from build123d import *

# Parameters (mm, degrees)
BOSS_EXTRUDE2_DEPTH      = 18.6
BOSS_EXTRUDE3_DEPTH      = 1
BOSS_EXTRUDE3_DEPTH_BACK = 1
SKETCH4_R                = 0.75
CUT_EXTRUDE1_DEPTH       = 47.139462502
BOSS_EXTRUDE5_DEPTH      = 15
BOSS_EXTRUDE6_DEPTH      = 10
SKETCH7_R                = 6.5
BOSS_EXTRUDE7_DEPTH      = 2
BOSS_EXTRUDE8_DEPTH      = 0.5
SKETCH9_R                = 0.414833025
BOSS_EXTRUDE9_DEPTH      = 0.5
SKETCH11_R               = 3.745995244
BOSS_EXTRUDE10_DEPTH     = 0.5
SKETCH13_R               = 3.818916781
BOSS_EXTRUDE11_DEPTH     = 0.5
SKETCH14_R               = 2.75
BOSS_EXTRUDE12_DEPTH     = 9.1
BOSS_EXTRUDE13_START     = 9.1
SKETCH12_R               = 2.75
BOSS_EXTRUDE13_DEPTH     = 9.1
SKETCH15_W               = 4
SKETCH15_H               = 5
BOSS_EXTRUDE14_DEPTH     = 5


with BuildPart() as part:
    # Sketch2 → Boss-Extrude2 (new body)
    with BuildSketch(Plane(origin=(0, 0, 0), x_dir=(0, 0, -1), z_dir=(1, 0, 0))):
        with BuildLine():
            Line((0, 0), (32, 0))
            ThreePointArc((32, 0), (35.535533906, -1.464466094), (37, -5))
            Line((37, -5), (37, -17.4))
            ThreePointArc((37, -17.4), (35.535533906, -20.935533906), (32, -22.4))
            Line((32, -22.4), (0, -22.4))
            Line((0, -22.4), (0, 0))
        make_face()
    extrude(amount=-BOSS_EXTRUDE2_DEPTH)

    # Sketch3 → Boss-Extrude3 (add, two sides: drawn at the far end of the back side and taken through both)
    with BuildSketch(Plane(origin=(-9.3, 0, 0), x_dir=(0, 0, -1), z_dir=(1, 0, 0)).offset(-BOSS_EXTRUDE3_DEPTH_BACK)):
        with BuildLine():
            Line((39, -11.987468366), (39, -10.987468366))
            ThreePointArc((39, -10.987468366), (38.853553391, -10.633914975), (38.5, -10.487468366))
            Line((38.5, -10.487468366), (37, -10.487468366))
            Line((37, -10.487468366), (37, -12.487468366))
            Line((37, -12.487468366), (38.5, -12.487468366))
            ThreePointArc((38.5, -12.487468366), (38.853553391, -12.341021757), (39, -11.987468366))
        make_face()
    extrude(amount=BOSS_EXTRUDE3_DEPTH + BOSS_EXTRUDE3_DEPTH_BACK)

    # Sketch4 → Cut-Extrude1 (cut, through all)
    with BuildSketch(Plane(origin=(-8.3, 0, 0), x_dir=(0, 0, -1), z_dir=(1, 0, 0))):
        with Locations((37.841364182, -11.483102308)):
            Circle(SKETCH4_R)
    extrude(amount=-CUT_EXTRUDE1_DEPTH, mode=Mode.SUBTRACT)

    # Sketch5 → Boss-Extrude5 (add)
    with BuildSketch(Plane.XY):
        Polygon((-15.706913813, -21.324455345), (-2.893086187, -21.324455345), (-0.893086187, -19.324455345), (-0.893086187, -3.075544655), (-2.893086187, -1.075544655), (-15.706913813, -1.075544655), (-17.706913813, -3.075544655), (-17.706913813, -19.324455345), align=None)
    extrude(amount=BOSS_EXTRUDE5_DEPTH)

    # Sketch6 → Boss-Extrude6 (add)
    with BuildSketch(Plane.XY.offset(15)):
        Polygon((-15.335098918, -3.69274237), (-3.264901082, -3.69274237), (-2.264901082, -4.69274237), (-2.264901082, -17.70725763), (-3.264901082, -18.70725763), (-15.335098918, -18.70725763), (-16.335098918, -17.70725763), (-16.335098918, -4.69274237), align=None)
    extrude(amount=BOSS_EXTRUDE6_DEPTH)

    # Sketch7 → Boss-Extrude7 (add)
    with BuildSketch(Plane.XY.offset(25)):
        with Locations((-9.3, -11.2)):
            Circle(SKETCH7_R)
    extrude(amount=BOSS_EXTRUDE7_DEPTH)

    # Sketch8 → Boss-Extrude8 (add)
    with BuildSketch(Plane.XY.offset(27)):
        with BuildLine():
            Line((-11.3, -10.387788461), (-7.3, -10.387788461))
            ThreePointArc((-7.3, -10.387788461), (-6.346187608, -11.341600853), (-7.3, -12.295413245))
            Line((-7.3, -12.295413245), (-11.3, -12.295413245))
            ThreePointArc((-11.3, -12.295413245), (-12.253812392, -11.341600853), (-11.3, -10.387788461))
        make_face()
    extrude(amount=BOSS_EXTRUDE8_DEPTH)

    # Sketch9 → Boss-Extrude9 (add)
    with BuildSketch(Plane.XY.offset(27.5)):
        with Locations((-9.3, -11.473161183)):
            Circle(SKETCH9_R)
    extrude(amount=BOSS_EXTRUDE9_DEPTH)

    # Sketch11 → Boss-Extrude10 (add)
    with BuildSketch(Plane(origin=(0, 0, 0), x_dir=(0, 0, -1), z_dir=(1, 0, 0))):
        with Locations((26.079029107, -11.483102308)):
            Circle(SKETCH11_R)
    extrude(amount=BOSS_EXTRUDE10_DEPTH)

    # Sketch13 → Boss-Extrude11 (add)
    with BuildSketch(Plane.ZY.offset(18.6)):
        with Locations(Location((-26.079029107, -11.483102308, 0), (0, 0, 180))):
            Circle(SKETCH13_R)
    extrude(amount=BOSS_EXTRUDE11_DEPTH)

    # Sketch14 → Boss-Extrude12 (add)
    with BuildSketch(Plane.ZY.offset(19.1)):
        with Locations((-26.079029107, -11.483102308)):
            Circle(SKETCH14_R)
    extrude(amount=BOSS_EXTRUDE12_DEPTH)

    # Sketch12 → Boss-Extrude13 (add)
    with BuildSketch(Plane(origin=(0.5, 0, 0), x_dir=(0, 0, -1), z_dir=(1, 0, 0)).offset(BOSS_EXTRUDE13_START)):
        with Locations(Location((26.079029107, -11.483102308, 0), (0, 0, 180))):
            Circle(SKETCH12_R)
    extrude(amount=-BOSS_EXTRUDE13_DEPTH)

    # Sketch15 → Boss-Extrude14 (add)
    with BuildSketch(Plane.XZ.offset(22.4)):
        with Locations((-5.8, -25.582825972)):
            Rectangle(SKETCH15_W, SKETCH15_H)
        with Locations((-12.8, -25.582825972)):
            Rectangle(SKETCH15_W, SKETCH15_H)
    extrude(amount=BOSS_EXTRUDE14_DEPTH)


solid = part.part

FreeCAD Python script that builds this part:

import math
import FreeCAD as App
import Part
import Sketcher

V = App.Vector
Q = App.Units.Quantity

doc = App.newDocument("Part")
body = doc.addObject("PartDesign::Body", "Body")

# Sketch on YZ plane
sketch1 = body.newObject("Sketcher::SketchObject", "Sketch")
sketch1.AttachmentSupport = (doc.getObject("YZ_Plane"), [""])
sketch1.MapMode = "FlatFace"
sketch1.addGeometry(Part.LineSegment(V(0, -32, 0), V(0, 0, 0)), False)
sketch1.addGeometry(Part.LineSegment(V(0, 0, 0), V(-22, 0, 0)), False)
sketch1.addGeometry(Part.LineSegment(V(-22, 0, 0), V(-22, -32, 0)), False)
sketch1.addGeometry(Part.ArcOfCircle(Part.Circle(V(-17, -32, 0), V(0, 0, 1), 5), math.radians(180), math.radians(270)), False)
sketch1.addGeometry(Part.LineSegment(V(-17, -37, 0), V(-5, -37, 0)), False)
sketch1.addGeometry(Part.ArcOfCircle(Part.Circle(V(-5, -32, 0), V(0, 0, 1), 5), math.radians(-90), math.radians(0)), False)
sketch1.addConstraint(Sketcher.Constraint("Coincident", 0, 2, 1, 1))
sketch1.addConstraint(Sketcher.Constraint("Coincident", 1, 2, 2, 1))
sketch1.addConstraint(Sketcher.Constraint("Tangent", 2, 2, 3, 1))
sketch1.addConstraint(Sketcher.Constraint("Tangent", 3, 2, 4, 1))
sketch1.addConstraint(Sketcher.Constraint("Tangent", 4, 2, 5, 1))
sketch1.addConstraint(Sketcher.Constraint("Tangent", 5, 2, 0, 1))
sketch1.addConstraint(Sketcher.Constraint("Vertical", 0))
sketch1.addConstraint(Sketcher.Constraint("Horizontal", 1))
sketch1.addConstraint(Sketcher.Constraint("Vertical", 2))
sketch1.addConstraint(Sketcher.Constraint("Horizontal", 4))
sketch1.addConstraint(Sketcher.Constraint("Coincident", 0, 2, -1, 1))
sketch1.addConstraint(Sketcher.Constraint("Equal", 3, 5))
sketch1.addConstraint(Sketcher.Constraint("Radius", 3, Q("5 mm")))
sketch1.addConstraint(Sketcher.Constraint("DistanceY", 0, 1, 0, 2, Q("32 mm")))
sketch1.addConstraint(Sketcher.Constraint("DistanceX", 1, 2, 1, 1, Q("22.4 mm")))
pad1 = body.newObject("PartDesign::Pad", "Pad")
pad1.Profile = sketch1
pad1.Length = 18.6
pad1.Reversed = True

# Sketch on YZ plane
sketch2 = body.newObject("Sketcher::SketchObject", "Sketch001")
sketch2.AttachmentSupport = (doc.getObject("YZ_Plane"), [""])
sketch2.MapMode = "FlatFace"
sketch2.AttachmentOffset = App.Placement(V(0, 0, -9.3), App.Rotation())
sketch2.addGeometry(Part.LineSegment(V(-11.99, -39, 0), V(-10.99, -39, 0)), False)
sketch2.addGeometry(Part.ArcOfCircle(Part.Circle(V(-10.99, -38.5, 0), V(0, 0, 1), 0.5), math.radians(-90), math.radians(0)), False)
sketch2.addGeometry(Part.LineSegment(V(-10.49, -38.5, 0), V(-10.49, -37, 0)), False)
sketch2.addGeometry(Part.LineSegment(V(-10.49, -37, 0), V(-12.49, -37, 0)), False)
sketch2.addGeometry(Part.LineSegment(V(-12.49, -37, 0), V(-12.49, -38.5, 0)), False)
sketch2.addGeometry(Part.ArcOfCircle(Part.Circle(V(-11.99, -38.5, 0), V(0, 0, 1), 0.5), math.radians(180), math.radians(270)), False)
sketch2.addConstraint(Sketcher.Constraint("Tangent", 0, 2, 1, 1))
sketch2.addConstraint(Sketcher.Constraint("Tangent", 1, 2, 2, 1))
sketch2.addConstraint(Sketcher.Constraint("Coincident", 2, 2, 3, 1))
sketch2.addConstraint(Sketcher.Constraint("Coincident", 3, 2, 4, 1))
sketch2.addConstraint(Sketcher.Constraint("Tangent", 4, 2, 5, 1))
sketch2.addConstraint(Sketcher.Constraint("Tangent", 5, 2, 0, 1))
sketch2.addConstraint(Sketcher.Constraint("Horizontal", 0))
sketch2.addConstraint(Sketcher.Constraint("Vertical", 2))
sketch2.addConstraint(Sketcher.Constraint("Horizontal", 3))
sketch2.addConstraint(Sketcher.Constraint("Vertical", 4))
sketch2.addConstraint(Sketcher.Constraint("Equal", 1, 5))
sketch2.addConstraint(Sketcher.Constraint("Radius", 1, Q("0.5 mm")))
sketch2.addConstraint(Sketcher.Constraint("DistanceX", 0, 1, 0, 2, Q("1 mm")))
sketch2.addConstraint(Sketcher.Constraint("DistanceY", 2, 1, 2, 2, Q("1.5 mm")))
sketch2.addConstraint(Sketcher.Constraint("DistanceY", 0, 2, -1, 1, Q("39 mm")))
sketch2.addConstraint(Sketcher.Constraint("DistanceX", 1, 3, -1, 1, Q("10.987468 mm")))
pad2 = body.newObject("PartDesign::Pad", "Pad001")
pad2.Profile = sketch2
pad2.Type = "TwoLengths"
pad2.Length = 1
pad2.Length2 = 1

# Sketch on YZ plane
sketch3 = body.newObject("Sketcher::SketchObject", "Sketch002")
sketch3.AttachmentSupport = (doc.getObject("YZ_Plane"), [""])
sketch3.MapMode = "FlatFace"
sketch3.AttachmentOffset = App.Placement(V(0, 0, -8.3), App.Rotation())
sketch3.addGeometry(Part.Circle(V(-11.5, -37.8, 0), V(0, 0, 1), 0.8), False)
sketch3.addConstraint(Sketcher.Constraint("Diameter", 0, Q("1.5 mm")))
sketch3.addConstraint(Sketcher.Constraint("DistanceX", 0, 3, -1, 1, Q("11.483102 mm")))
sketch3.addConstraint(Sketcher.Constraint("DistanceY", 0, 3, -1, 1, Q("37.841364 mm")))
pocket1 = body.newObject("PartDesign::Pocket", "Pocket")
pocket1.Profile = sketch3
pocket1.Type = "ThroughAll"

# Sketch on XY plane
sketch4 = body.newObject("Sketcher::SketchObject", "Sketch003")
sketch4.AttachmentSupport = (doc.getObject("XY_Plane"), [""])
sketch4.MapMode = "FlatFace"
sketch4.addGeometry(Part.LineSegment(V(-15.7, -21.3, 0), V(-2.9, -21.3, 0)), False)
sketch4.addGeometry(Part.LineSegment(V(-2.9, -21.3, 0), V(-0.9, -19.3, 0)), False)
sketch4.addGeometry(Part.LineSegment(V(-0.9, -19.3, 0), V(-0.9, -3.1, 0)), False)
sketch4.addGeometry(Part.LineSegment(V(-0.9, -3.1, 0), V(-2.9, -1.1, 0)), False)
sketch4.addGeometry(Part.LineSegment(V(-2.9, -1.1, 0), V(-15.7, -1.1, 0)), False)
sketch4.addGeometry(Part.LineSegment(V(-15.7, -1.1, 0), V(-17.7, -3.1, 0)), False)
sketch4.addGeometry(Part.LineSegment(V(-17.7, -3.1, 0), V(-17.7, -19.3, 0)), False)
sketch4.addGeometry(Part.LineSegment(V(-17.7, -19.3, 0), V(-15.7, -21.3, 0)), False)
sketch4.addConstraint(Sketcher.Constraint("Coincident", 0, 2, 1, 1))
sketch4.addConstraint(Sketcher.Constraint("Coincident", 1, 2, 2, 1))
sketch4.addConstraint(Sketcher.Constraint("Coincident", 2, 2, 3, 1))
sketch4.addConstraint(Sketcher.Constraint("Coincident", 3, 2, 4, 1))
sketch4.addConstraint(Sketcher.Constraint("Coincident", 4, 2, 5, 1))
sketch4.addConstraint(Sketcher.Constraint("Coincident", 5, 2, 6, 1))
sketch4.addConstraint(Sketcher.Constraint("Coincident", 6, 2, 7, 1))
sketch4.addConstraint(Sketcher.Constraint("Coincident", 7, 2, 0, 1))
sketch4.addConstraint(Sketcher.Constraint("Horizontal", 0))
sketch4.addConstraint(Sketcher.Constraint("Vertical", 2))
sketch4.addConstraint(Sketcher.Constraint("Horizontal", 4))
sketch4.addConstraint(Sketcher.Constraint("Vertical", 6))
sketch4.addConstraint(Sketcher.Constraint("Perpendicular", 1, 3))
sketch4.addConstraint(Sketcher.Constraint("Perpendicular", 3, 5))
sketch4.addConstraint(Sketcher.Constraint("Perpendicular", 5, 7))
sketch4.addConstraint(Sketcher.Constraint("Horizontal", 2, 2, 5, 2))
sketch4.addConstraint(Sketcher.Constraint("Horizontal", 1, 2, 6, 2))
sketch4.addConstraint(Sketcher.Constraint("Vertical", 0, 2, 3, 2))
sketch4.addConstraint(Sketcher.Constraint("Vertical", 4, 2, 7, 2))
sketch4.addConstraint(Sketcher.Constraint("DistanceX", 0, 2, 1, 2, Q("2 mm")))
sketch4.addConstraint(Sketcher.Constraint("DistanceY", 2, 1, 2, 2, Q("16.248911 mm")))
sketch4.addConstraint(Sketcher.Constraint("DistanceX", 0, 1, 0, 2, Q("12.813828 mm")))
sketch4.addConstraint(Sketcher.Constraint("DistanceX", 0, 2, -1, 1, Q("2.893086 mm")))
sketch4.addConstraint(Sketcher.Constraint("DistanceY", 0, 2, -1, 1, Q("21.324455 mm")))
pad3 = body.newObject("PartDesign::Pad", "Pad002")
pad3.Profile = sketch4
pad3.Length = 15

# Sketch on XY plane
sketch5 = body.newObject("Sketcher::SketchObject", "Sketch004")
sketch5.AttachmentSupport = (doc.getObject("XY_Plane"), [""])
sketch5.MapMode = "FlatFace"
sketch5.AttachmentOffset = App.Placement(V(0, 0, 15), App.Rotation())
sketch5.addGeometry(Part.LineSegment(V(-3.3, -3.7, 0), V(-15.3, -3.7, 0)), False)
sketch5.addGeometry(Part.LineSegment(V(-15.3, -3.7, 0), V(-16.3, -4.7, 0)), False)
sketch5.addGeometry(Part.LineSegment(V(-16.3, -4.7, 0), V(-16.3, -17.7, 0)), False)
sketch5.addGeometry(Part.LineSegment(V(-16.3, -17.7, 0), V(-15.3, -18.7, 0)), False)
sketch5.addGeometry(Part.LineSegment(V(-15.3, -18.7, 0), V(-3.3, -18.7, 0)), False)
sketch5.addGeometry(Part.LineSegment(V(-3.3, -18.7, 0), V(-2.3, -17.7, 0)), False)
sketch5.addGeometry(Part.LineSegment(V(-2.3, -17.7, 0), V(-2.3, -4.7, 0)), False)
sketch5.addGeometry(Part.LineSegment(V(-2.3, -4.7, 0), V(-3.3, -3.7, 0)), False)
sketch5.addConstraint(Sketcher.Constraint("Coincident", 0, 2, 1, 1))
sketch5.addConstraint(Sketcher.Constraint("Coincident", 1, 2, 2, 1))
sketch5.addConstraint(Sketcher.Constraint("Coincident", 2, 2, 3, 1))
sketch5.addConstraint(Sketcher.Constraint("Coincident", 3, 2, 4, 1))
sketch5.addConstraint(Sketcher.Constraint("Coincident", 4, 2, 5, 1))
sketch5.addConstraint(Sketcher.Constraint("Coincident", 5, 2, 6, 1))
sketch5.addConstraint(Sketcher.Constraint("Coincident", 6, 2, 7, 1))
sketch5.addConstraint(Sketcher.Constraint("Coincident", 7, 2, 0, 1))
sketch5.addConstraint(Sketcher.Constraint("Horizontal", 0))
sketch5.addConstraint(Sketcher.Constraint("Vertical", 2))
sketch5.addConstraint(Sketcher.Constraint("Horizontal", 4))
sketch5.addConstraint(Sketcher.Constraint("Vertical", 6))
sketch5.addConstraint(Sketcher.Constraint("Perpendicular", 1, 3))
sketch5.addConstraint(Sketcher.Constraint("Perpendicular", 3, 5))
sketch5.addConstraint(Sketcher.Constraint("Perpendicular", 5, 7))
sketch5.addConstraint(Sketcher.Constraint("Horizontal", 2, 2, 5, 2))
sketch5.addConstraint(Sketcher.Constraint("Horizontal", 1, 2, 6, 2))
sketch5.addConstraint(Sketcher.Constraint("Vertical", 0, 2, 3, 2))
sketch5.addConstraint(Sketcher.Constraint("Vertical", 4, 2, 7, 2))
sketch5.addConstraint(Sketcher.Constraint("DistanceX", 1, 2, 0, 2, Q("1 mm")))
sketch5.addConstraint(Sketcher.Constraint("DistanceX", 0, 2, -1, 1, Q("15.335099 mm")))
sketch5.addConstraint(Sketcher.Constraint("DistanceX", 4, 2, -1, 1, Q("3.264901 mm")))
sketch5.addConstraint(Sketcher.Constraint("DistanceY", 2, 2, 2, 1, Q("13.014515 mm")))
sketch5.addConstraint(Sketcher.Constraint("DistanceY", 0, 2, -1, 1, Q("3.692742 mm")))
pad4 = body.newObject("PartDesign::Pad", "Pad003")
pad4.Profile = sketch5
pad4.Length = 10

# Sketch on XY plane
sketch6 = body.newObject("Sketcher::SketchObject", "Sketch005")
sketch6.AttachmentSupport = (doc.getObject("XY_Plane"), [""])
sketch6.MapMode = "FlatFace"
sketch6.AttachmentOffset = App.Placement(V(0, 0, 25), App.Rotation())
sketch6.addGeometry(Part.Circle(V(-9, -11, 0), V(0, 0, 1), 6), False)
sketch6.addConstraint(Sketcher.Constraint("Diameter", 0, Q("13 mm")))
sketch6.addConstraint(Sketcher.Constraint("DistanceX", 0, 3, -1, 1, Q("9.3 mm")))
sketch6.addConstraint(Sketcher.Constraint("DistanceY", 0, 3, -1, 1, Q("11.2 mm")))
pad5 = body.newObject("PartDesign::Pad", "Pad004")
pad5.Profile = sketch6
pad5.Length = 2

# Sketch on XY plane
sketch7 = body.newObject("Sketcher::SketchObject", "Sketch006")
sketch7.AttachmentSupport = (doc.getObject("XY_Plane"), [""])
sketch7.MapMode = "FlatFace"
sketch7.AttachmentOffset = App.Placement(V(0, 0, 27), App.Rotation())
sketch7.addGeometry(Part.LineSegment(V(-7.3, -10.4, 0), V(-11.3, -10.4, 0)), False)
sketch7.addGeometry(Part.ArcOfCircle(Part.Circle(V(-11.3, -11.3, 0), V(0, 0, 1), 1), math.radians(90), math.radians(270)), False)
sketch7.addGeometry(Part.LineSegment(V(-11.3, -12.3, 0), V(-7.3, -12.3, 0)), False)
sketch7.addGeometry(Part.ArcOfCircle(Part.Circle(V(-7.3, -11.3, 0), V(0, 0, 1), 1), math.radians(-90), math.radians(90)), False)
sketch7.addConstraint(Sketcher.Constraint("Tangent", 0, 2, 1, 1))
sketch7.addConstraint(Sketcher.Constraint("Tangent", 1, 2, 2, 1))
sketch7.addConstraint(Sketcher.Constraint("Tangent", 2, 2, 3, 1))
sketch7.addConstraint(Sketcher.Constraint("Tangent", 3, 2, 0, 1))
sketch7.addConstraint(Sketcher.Constraint("Horizontal", 0))
sketch7.addConstraint(Sketcher.Constraint("Horizontal", 2))
sketch7.addConstraint(Sketcher.Constraint("DistanceX", 0, 2, 0, 1, Q("4 mm")))
sketch7.addConstraint(Sketcher.Constraint("DistanceX", 1, 3, -1, 1, Q("11.3 mm")))
sketch7.addConstraint(Sketcher.Constraint("Radius", 1, Q("0.953812 mm")))
sketch7.addConstraint(Sketcher.Constraint("DistanceY", 1, 3, -1, 1, Q("11.341601 mm")))
pad6 = body.newObject("PartDesign::Pad", "Pad005")
pad6.Profile = sketch7
pad6.Length = 0.5

# Sketch on XY plane
sketch8 = body.newObject("Sketcher::SketchObject", "Sketch007")
sketch8.AttachmentSupport = (doc.getObject("XY_Plane"), [""])
sketch8.MapMode = "FlatFace"
sketch8.AttachmentOffset = App.Placement(V(0, 0, 27.5), App.Rotation())
sketch8.addGeometry(Part.Circle(V(-9.3, -11.47, 0), V(0, 0, 1), 0.41), False)
sketch8.addConstraint(Sketcher.Constraint("DistanceX", 0, 3, -1, 1, Q("9.3 mm")))
sketch8.addConstraint(Sketcher.Constraint("Diameter", 0, Q("0.829666 mm")))
sketch8.addConstraint(Sketcher.Constraint("DistanceY", 0, 3, -1, 1, Q("11.473161 mm")))
pad7 = body.newObject("PartDesign::Pad", "Pad006")
pad7.Profile = sketch8
pad7.Length = 0.5

# Sketch on YZ plane
sketch9 = body.newObject("Sketcher::SketchObject", "Sketch008")
sketch9.AttachmentSupport = (doc.getObject("YZ_Plane"), [""])
sketch9.MapMode = "FlatFace"
sketch9.addGeometry(Part.Circle(V(-11.5, -26.1, 0), V(0, 0, 1), 3.7), False)
sketch9.addConstraint(Sketcher.Constraint("Diameter", 0, Q("7.49199 mm")))
sketch9.addConstraint(Sketcher.Constraint("DistanceY", 0, 3, -1, 1, Q("26.079029 mm")))
sketch9.addConstraint(Sketcher.Constraint("DistanceX", 0, 3, -1, 1, Q("11.483102 mm")))
pad8 = body.newObject("PartDesign::Pad", "Pad007")
pad8.Profile = sketch9
pad8.Length = 0.5

# Sketch on YZ plane
sketch10 = body.newObject("Sketcher::SketchObject", "Sketch009")
sketch10.AttachmentSupport = (doc.getObject("YZ_Plane"), [""])
sketch10.MapMode = "FlatFace"
sketch10.AttachmentOffset = App.Placement(V(0, 0, -18.6), App.Rotation())
sketch10.addGeometry(Part.Circle(V(-11.5, -26.1, 0), V(0, 0, 1), 3.8), False)
sketch10.addConstraint(Sketcher.Constraint("Diameter", 0, Q("7.637834 mm")))
sketch10.addConstraint(Sketcher.Constraint("DistanceY", 0, 3, -1, 1, Q("26.079029 mm")))
sketch10.addConstraint(Sketcher.Constraint("DistanceX", 0, 3, -1, 1, Q("11.483102 mm")))
pad9 = body.newObject("PartDesign::Pad", "Pad008")
pad9.Profile = sketch10
pad9.Length = 0.5
pad9.Reversed = True

# Sketch on YZ plane
sketch11 = body.newObject("Sketcher::SketchObject", "Sketch010")
sketch11.AttachmentSupport = (doc.getObject("YZ_Plane"), [""])
sketch11.MapMode = "FlatFace"
sketch11.AttachmentOffset = App.Placement(V(0, 0, -19.1), App.Rotation())
sketch11.addGeometry(Part.Circle(V(-11.5, -26.1, 0), V(0, 0, 1), 2.8), False)
sketch11.addConstraint(Sketcher.Constraint("Diameter", 0, Q("5.5 mm")))
sketch11.addConstraint(Sketcher.Constraint("DistanceY", 0, 3, -1, 1, Q("26.079029 mm")))
sketch11.addConstraint(Sketcher.Constraint("DistanceX", 0, 3, -1, 1, Q("11.483102 mm")))
pad10 = body.newObject("PartDesign::Pad", "Pad009")
pad10.Profile = sketch11
pad10.Length = 9.1
pad10.Reversed = True

# Sketch on YZ plane
sketch12 = body.newObject("Sketcher::SketchObject", "Sketch011")
sketch12.AttachmentSupport = (doc.getObject("YZ_Plane"), [""])
sketch12.MapMode = "FlatFace"
sketch12.AttachmentOffset = App.Placement(V(0, 0, 9.6), App.Rotation())
sketch12.addGeometry(Part.Circle(V(-11.5, -26.1, 0), V(0, 0, 1), 2.8), False)
sketch12.addConstraint(Sketcher.Constraint("Diameter", 0, Q("5.5 mm")))
sketch12.addConstraint(Sketcher.Constraint("DistanceY", 0, 3, -1, 1, Q("26.079029 mm")))
sketch12.addConstraint(Sketcher.Constraint("DistanceX", 0, 3, -1, 1, Q("11.483102 mm")))
pad11 = body.newObject("PartDesign::Pad", "Pad010")
pad11.Profile = sketch12
pad11.Length = 9.1
pad11.Reversed = True

# Sketch on XZ plane
sketch13 = body.newObject("Sketcher::SketchObject", "Sketch012")
sketch13.AttachmentSupport = (doc.getObject("XZ_Plane"), [""])
sketch13.MapMode = "FlatFace"
sketch13.AttachmentOffset = App.Placement(V(0, 0, 22.4), App.Rotation())
sketch13.addGeometry(Part.LineSegment(V(-7.8, -23.1, 0), V(-7.8, -28.1, 0)), False)
sketch13.addGeometry(Part.LineSegment(V(-7.8, -28.1, 0), V(-3.8, -28.1, 0)), False)
sketch13.addGeometry(Part.LineSegment(V(-3.8, -28.1, 0), V(-3.8, -23.1, 0)), False)
sketch13.addGeometry(Part.LineSegment(V(-3.8, -23.1, 0), V(-7.8, -23.1, 0)), False)
sketch13.addGeometry(Part.LineSegment(V(-14.8, -23.1, 0), V(-14.8, -28.1, 0)), False)
sketch13.addGeometry(Part.LineSegment(V(-14.8, -28.1, 0), V(-10.8, -28.1, 0)), False)
sketch13.addGeometry(Part.LineSegment(V(-10.8, -28.1, 0), V(-10.8, -23.1, 0)), False)
sketch13.addGeometry(Part.LineSegment(V(-10.8, -23.1, 0), V(-14.8, -23.1, 0)), False)
sketch13.addConstraint(Sketcher.Constraint("Coincident", 0, 2, 1, 1))
sketch13.addConstraint(Sketcher.Constraint("Coincident", 1, 2, 2, 1))
sketch13.addConstraint(Sketcher.Constraint("Coincident", 2, 2, 3, 1))
sketch13.addConstraint(Sketcher.Constraint("Coincident", 3, 2, 0, 1))
sketch13.addConstraint(Sketcher.Constraint("Coincident", 4, 2, 5, 1))
sketch13.addConstraint(Sketcher.Constraint("Coincident", 5, 2, 6, 1))
sketch13.addConstraint(Sketcher.Constraint("Coincident", 6, 2, 7, 1))
sketch13.addConstraint(Sketcher.Constraint("Coincident", 7, 2, 4, 1))
sketch13.addConstraint(Sketcher.Constraint("Vertical", 0))
sketch13.addConstraint(Sketcher.Constraint("Horizontal", 1))
sketch13.addConstraint(Sketcher.Constraint("Vertical", 2))
sketch13.addConstraint(Sketcher.Constraint("Horizontal", 3))
sketch13.addConstraint(Sketcher.Constraint("Vertical", 4))
sketch13.addConstraint(Sketcher.Constraint("Horizontal", 5))
sketch13.addConstraint(Sketcher.Constraint("Vertical", 6))
sketch13.addConstraint(Sketcher.Constraint("Horizontal", 7))
sketch13.addConstraint(Sketcher.Constraint("Horizontal", 1, 2, 4, 2))
sketch13.addConstraint(Sketcher.Constraint("Horizontal", 3, 2, 6, 2))
sketch13.addConstraint(Sketcher.Constraint("Equal", 3, 5))
sketch13.addConstraint(Sketcher.Constraint("DistanceX", 1, 1, 1, 2, Q("4 mm")))
sketch13.addConstraint(Sketcher.Constraint("DistanceY", 0, 2, 0, 1, Q("5 mm")))
sketch13.addConstraint(Sketcher.Constraint("DistanceX", 4, 2, 0, 2, Q("7 mm")))
sketch13.addConstraint(Sketcher.Constraint("DistanceX", 0, 2, -1, 1, Q("7.8 mm")))
sketch13.addConstraint(Sketcher.Constraint("DistanceY", 0, 2, -1, 1, Q("28.082826 mm")))
pad12 = body.newObject("PartDesign::Pad", "Pad011")
pad12.Profile = sketch13
pad12.Length = 5

doc.recompute()
